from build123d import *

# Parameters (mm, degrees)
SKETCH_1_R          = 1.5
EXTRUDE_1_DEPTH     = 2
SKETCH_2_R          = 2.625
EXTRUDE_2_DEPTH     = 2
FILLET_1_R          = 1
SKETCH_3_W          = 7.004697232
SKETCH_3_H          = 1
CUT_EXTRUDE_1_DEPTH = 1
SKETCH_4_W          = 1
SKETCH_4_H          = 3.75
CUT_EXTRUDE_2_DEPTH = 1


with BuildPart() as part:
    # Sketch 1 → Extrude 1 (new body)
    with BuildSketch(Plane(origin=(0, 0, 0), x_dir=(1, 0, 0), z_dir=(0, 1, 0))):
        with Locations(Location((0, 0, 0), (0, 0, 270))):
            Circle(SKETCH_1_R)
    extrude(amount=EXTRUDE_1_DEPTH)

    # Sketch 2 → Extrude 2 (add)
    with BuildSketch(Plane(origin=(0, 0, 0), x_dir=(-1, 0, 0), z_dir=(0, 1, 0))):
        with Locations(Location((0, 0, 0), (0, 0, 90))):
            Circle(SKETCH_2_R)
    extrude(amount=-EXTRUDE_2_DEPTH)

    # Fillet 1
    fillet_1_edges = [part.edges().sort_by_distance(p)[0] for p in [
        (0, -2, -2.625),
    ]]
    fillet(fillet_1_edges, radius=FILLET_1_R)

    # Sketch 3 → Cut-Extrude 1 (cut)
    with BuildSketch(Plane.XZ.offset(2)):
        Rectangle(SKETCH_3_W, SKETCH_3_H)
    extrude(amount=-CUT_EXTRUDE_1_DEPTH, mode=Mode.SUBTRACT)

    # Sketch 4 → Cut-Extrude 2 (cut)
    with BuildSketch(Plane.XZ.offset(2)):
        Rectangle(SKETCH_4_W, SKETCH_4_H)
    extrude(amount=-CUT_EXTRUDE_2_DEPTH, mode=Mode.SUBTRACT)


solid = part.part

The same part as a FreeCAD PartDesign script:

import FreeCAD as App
import Part
import Sketcher

V = App.Vector


def edges_at(feature, points):
    """Names of the edges that pass closest to the given points."""
    edges = feature.Shape.Edges
    near = lambda p: min(range(len(edges)), key=lambda i: edges[i].distToShape(Part.Vertex(*p))[0])
    return sorted({f"Edge{near(p) + 1}" for p in points})


def add_polygon(sketch, points):
    """Adds a closed chain of lines whose ends are joined by coincident constraints."""
    first, n = sketch.GeometryCount, len(points)
    for a, b in zip(points, points[1:] + points[:1]):
        sketch.addGeometry(Part.LineSegment(App.Vector(*a, 0), App.Vector(*b, 0)), False)
    for i in range(n):
        sketch.addConstraint(Sketcher.Constraint("Coincident", first + i, 2, first + (i + 1) % n, 1))

doc = App.newDocument("Part")
body = doc.addObject("PartDesign::Body", "Body")

sketch1 = body.newObject("Sketcher::SketchObject", "Sketch")
sketch1.AttachmentSupport = (doc.getObject("XZ_Plane"), [""])
sketch1.MapMode = "FlatFace"
sketch1.addGeometry(Part.Circle(V(0, 0, 0), V(0, 0, 1), 1.5), False)
sketch1.addConstraint([
    Sketcher.Constraint("Coincident", 0, 3, -1, 1),
    Sketcher.Constraint("Diameter", 0, 3.0),
])
pad1 = body.newObject("PartDesign::Pad", "Pad")
pad1.Profile = sketch1
pad1.Length = 2
pad1.Reversed = True

sketch2 = body.newObject("Sketcher::SketchObject", "Sketch001")
sketch2.AttachmentSupport = (doc.getObject("XZ_Plane"), [""])
sketch2.MapMode = "FlatFace"
sketch2.addGeometry(Part.Circle(V(0, 0, 0), V(0, 0, 1), 2.6), False)
sketch2.addConstraint([
    Sketcher.Constraint("Coincident", 0, 3, -1, 1),
    Sketcher.Constraint("Diameter", 0, 5.25),
])
pad2 = body.newObject("PartDesign::Pad", "Pad001")
pad2.Profile = sketch2
pad2.Length = 2
doc.recompute()

fillet = body.newObject("PartDesign::Fillet", "Fillet")
fillet.Base = (pad2, edges_at(pad2, [(0, -2, -2.625)]))
fillet.Radius = 1

sketch3 = body.newObject("Sketcher::SketchObject", "Sketch002")
sketch3.AttachmentSupport = (doc.getObject("XZ_Plane"), [""])
sketch3.MapMode = "FlatFace"
sketch3.AttachmentOffset = App.Placement(V(0, 0, 2), App.Rotation())
add_polygon(sketch3, [(-3.5, 0.5), (-3.5, -0.5), (3.5, -0.5), (3.5, 0.5)])
sketch3.addConstraint([
    Sketcher.Constraint("Vertical", 0),
    Sketcher.Constraint("Horizontal", 1),
    Sketcher.Constraint("Vertical", 2),
    Sketcher.Constraint("Horizontal", 3),
    Sketcher.Constraint("Symmetric", 0, 2, 2, 2, -1, 1),
    Sketcher.Constraint("DistanceY", 0, 2, 0, 1, 1.0),
    Sketcher.Constraint("DistanceX", 1, 1, 1, 2, 7.004697),
])
pocket1 = body.newObject("PartDesign::Pocket", "Pocket")
pocket1.Profile = sketch3
pocket1.Length = 1

sketch4 = body.newObject("Sketcher::SketchObject", "Sketch003")
sketch4.AttachmentSupport = (doc.getObject("XZ_Plane"), [""])
sketch4.MapMode = "FlatFace"
sketch4.AttachmentOffset = App.Placement(V(0, 0, 2), App.Rotation())
add_polygon(sketch4, [(-0.5, 1.9), (-0.5, -1.9), (0.5, -1.9), (0.5, 1.9)])
sketch4.addConstraint([
    Sketcher.Constraint("Vertical", 0),
    Sketcher.Constraint("Horizontal", 1),
    Sketcher.Constraint("Vertical", 2),
    Sketcher.Constraint("Horizontal", 3),
    Sketcher.Constraint("Symmetric", 0, 2, 2, 2, -1, 1),
    Sketcher.Constraint("DistanceX", 1, 1, 1, 2, 1.0),
    Sketcher.Constraint("DistanceY", 0, 2, 0, 1, 3.75),
])
pocket2 = body.newObject("PartDesign::Pocket", "Pocket001")
pocket2.Profile = sketch4
pocket2.Length = 1

doc.recompute()
